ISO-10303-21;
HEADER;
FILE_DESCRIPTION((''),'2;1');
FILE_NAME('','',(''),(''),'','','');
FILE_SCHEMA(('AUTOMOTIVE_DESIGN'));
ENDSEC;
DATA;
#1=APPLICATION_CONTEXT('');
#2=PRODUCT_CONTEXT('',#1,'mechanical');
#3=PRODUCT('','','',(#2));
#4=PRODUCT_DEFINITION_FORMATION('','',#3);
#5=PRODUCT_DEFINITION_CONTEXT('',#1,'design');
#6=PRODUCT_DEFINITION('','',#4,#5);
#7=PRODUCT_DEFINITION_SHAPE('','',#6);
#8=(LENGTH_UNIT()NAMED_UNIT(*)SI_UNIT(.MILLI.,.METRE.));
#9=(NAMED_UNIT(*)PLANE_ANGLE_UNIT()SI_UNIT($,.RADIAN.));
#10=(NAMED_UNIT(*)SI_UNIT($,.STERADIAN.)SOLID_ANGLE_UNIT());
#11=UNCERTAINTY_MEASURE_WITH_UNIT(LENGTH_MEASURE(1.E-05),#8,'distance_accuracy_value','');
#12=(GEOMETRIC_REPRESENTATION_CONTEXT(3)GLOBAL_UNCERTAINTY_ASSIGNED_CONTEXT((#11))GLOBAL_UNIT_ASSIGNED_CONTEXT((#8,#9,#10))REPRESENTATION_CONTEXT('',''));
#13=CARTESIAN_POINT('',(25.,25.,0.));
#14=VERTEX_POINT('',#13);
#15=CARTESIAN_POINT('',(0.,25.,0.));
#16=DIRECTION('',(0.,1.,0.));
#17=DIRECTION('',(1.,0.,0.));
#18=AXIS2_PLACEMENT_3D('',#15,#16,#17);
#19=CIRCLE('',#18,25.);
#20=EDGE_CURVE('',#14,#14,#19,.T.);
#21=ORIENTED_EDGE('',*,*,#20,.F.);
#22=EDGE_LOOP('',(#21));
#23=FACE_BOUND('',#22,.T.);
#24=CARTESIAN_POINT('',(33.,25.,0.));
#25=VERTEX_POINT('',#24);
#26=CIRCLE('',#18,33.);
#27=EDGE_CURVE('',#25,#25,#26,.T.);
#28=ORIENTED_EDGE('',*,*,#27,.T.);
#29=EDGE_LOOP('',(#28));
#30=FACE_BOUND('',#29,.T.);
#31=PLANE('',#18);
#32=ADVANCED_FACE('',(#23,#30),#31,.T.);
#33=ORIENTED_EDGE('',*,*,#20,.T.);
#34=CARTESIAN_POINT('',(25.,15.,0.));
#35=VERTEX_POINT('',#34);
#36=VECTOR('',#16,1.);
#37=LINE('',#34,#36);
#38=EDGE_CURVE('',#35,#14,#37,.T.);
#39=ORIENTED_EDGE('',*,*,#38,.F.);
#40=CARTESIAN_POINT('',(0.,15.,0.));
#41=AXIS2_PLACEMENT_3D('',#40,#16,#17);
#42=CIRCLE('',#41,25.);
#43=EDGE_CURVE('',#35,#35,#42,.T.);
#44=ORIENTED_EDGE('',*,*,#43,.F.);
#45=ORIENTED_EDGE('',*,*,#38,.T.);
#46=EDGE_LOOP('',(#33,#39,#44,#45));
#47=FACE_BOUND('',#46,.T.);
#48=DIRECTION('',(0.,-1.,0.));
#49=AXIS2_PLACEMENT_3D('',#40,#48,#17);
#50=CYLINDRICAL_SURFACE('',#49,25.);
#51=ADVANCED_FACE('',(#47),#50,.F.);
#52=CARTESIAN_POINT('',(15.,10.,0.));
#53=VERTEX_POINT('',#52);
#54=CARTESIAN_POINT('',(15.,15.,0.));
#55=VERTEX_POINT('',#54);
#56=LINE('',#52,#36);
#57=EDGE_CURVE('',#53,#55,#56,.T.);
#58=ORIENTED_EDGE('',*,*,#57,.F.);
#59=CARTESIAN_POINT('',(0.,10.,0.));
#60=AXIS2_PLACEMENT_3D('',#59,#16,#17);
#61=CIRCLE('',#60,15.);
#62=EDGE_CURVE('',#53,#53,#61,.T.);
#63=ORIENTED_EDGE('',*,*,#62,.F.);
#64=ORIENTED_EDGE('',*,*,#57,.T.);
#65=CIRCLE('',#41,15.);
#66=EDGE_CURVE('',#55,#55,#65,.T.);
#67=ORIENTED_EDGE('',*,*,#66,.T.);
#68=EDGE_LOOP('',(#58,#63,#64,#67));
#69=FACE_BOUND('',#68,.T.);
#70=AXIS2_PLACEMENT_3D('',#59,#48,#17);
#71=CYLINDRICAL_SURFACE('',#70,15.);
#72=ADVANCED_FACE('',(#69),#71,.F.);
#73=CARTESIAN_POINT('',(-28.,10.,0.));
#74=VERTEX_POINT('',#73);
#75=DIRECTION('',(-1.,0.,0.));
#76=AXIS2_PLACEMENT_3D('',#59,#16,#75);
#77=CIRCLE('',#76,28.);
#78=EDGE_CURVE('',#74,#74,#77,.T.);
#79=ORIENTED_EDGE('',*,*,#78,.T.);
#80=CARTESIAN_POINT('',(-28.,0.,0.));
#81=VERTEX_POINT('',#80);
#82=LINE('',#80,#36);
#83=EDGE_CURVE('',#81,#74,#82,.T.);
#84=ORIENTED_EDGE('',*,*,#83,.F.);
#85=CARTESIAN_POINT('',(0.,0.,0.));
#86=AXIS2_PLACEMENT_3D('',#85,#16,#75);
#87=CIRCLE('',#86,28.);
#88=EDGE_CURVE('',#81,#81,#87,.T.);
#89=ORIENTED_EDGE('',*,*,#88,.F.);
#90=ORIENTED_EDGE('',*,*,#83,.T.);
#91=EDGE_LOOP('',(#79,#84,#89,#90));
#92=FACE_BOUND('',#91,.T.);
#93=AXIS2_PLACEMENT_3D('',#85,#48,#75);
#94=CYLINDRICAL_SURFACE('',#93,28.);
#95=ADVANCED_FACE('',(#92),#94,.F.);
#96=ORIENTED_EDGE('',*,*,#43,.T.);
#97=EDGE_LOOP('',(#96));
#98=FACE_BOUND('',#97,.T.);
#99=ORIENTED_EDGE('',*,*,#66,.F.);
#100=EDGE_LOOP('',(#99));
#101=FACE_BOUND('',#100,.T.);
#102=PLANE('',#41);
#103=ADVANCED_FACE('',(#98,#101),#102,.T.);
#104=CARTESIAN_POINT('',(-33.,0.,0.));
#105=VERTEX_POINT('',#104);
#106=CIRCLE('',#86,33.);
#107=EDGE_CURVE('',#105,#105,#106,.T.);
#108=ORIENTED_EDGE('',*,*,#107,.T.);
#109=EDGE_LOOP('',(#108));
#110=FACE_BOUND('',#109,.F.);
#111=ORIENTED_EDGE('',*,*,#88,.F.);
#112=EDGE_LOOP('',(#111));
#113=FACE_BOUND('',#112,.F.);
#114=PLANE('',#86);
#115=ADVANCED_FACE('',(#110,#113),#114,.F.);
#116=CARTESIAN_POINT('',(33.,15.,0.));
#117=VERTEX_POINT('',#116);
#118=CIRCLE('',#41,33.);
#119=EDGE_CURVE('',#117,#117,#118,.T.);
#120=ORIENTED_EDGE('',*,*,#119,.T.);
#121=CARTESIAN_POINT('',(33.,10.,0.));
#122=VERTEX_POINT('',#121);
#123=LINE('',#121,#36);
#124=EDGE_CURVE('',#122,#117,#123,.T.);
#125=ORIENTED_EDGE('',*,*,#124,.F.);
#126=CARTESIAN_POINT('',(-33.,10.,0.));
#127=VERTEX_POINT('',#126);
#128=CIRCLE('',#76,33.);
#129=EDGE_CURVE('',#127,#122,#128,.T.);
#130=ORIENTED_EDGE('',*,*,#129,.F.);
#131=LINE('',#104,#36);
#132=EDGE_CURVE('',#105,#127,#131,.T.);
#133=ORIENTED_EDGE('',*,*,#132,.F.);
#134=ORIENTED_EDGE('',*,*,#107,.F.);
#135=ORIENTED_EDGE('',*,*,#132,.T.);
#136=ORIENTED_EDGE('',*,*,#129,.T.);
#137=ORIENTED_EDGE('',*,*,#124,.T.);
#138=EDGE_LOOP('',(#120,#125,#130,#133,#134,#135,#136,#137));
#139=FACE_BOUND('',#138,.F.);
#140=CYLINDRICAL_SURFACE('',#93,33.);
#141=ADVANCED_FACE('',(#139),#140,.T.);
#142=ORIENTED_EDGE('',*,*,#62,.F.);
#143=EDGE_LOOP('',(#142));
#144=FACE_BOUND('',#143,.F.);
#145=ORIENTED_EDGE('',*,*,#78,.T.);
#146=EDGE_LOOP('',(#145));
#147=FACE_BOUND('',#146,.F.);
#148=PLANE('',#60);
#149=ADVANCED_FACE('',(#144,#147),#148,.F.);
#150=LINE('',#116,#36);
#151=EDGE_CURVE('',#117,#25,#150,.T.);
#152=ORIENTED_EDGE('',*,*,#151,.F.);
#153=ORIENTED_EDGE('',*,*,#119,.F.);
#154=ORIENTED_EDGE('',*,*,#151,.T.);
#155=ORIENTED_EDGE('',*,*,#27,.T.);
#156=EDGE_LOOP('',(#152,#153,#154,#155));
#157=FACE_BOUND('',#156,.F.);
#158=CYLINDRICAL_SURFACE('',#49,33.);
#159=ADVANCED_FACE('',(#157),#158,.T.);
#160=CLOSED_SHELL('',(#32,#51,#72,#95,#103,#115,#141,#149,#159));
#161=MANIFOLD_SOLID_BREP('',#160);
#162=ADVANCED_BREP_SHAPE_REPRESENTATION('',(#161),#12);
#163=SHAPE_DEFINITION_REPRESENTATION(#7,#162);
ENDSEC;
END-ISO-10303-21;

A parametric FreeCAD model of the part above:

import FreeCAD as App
import Part
import Sketcher
from FreeCAD import Vector

doc = App.newDocument("Part")
params = doc.addObject("Spreadsheet::Sheet", "Params")
for row, (alias, value) in enumerate([
    ("sketch1_diameter", "66 mm"),
    ("sketch1_diameter2", "56 mm"),
    ("pad1_length", "10 mm"),
    ("sketch2_diameter", "30 mm"),
    ("sketch2_diameter2", "66 mm"),
    ("pad2_length", "5 mm"),
    ("sketch3_diameter", "66 mm"),
    ("sketch3_diameter2", "50 mm"),
    ("pad3_length", "10 mm"),
], start=1):
    params.set(f"A{row}", alias)
    params.set(f"B{row}", "=" + value)
    params.setAlias(f"B{row}", alias)

body = doc.addObject("PartDesign::Body", "Body")

sketch1 = doc.addObject("Sketcher::SketchObject", "Sketch")
body.addObject(sketch1)
sketch1.AttachmentSupport = (doc.XZ_Plane, [""])
sketch1.MapMode = "FlatFace"
sketch1.addGeometry(Part.Circle(Vector(0, 0, 0), Vector(0, 0, 1), 33), False)
sketch1.addGeometry(Part.Circle(Vector(0, 0, 0), Vector(0, 0, 1), 28), False)
sketch1.addConstraint(Sketcher.Constraint("Coincident", 0, 3, -1, 1))
sketch1.addConstraint(Sketcher.Constraint("Coincident", 1, 3, -1, 1))
sketch1.addConstraint(Sketcher.Constraint("Diameter", 0, 66.0))
sketch1.addConstraint(Sketcher.Constraint("Diameter", 1, 56.0))
sketch1.setExpression("Constraints[2]", "Params.sketch1_diameter")
sketch1.setExpression("Constraints[3]", "Params.sketch1_diameter2")
pad1 = doc.addObject("PartDesign::Pad", "Pad")
body.addObject(pad1)
pad1.Profile = sketch1
pad1.setExpression("Length", "Params.pad1_length")
pad1.Reversed = True

sketch2 = doc.addObject("Sketcher::SketchObject", "Sketch001")
body.addObject(sketch2)
sketch2.AttachmentSupport = (doc.XZ_Plane, [""])
sketch2.MapMode = "FlatFace"
sketch2.AttachmentOffset = App.Placement(Vector(0, 0, -10), App.Rotation())
sketch2.addGeometry(Part.Circle(Vector(0, 0, 0), Vector(0, 0, 1), 33), False)
sketch2.addGeometry(Part.Circle(Vector(0, 0, 0), Vector(0, 0, 1), 15), False)
sketch2.addConstraint(Sketcher.Constraint("Coincident", 0, 3, -1, 1))
sketch2.addConstraint(Sketcher.Constraint("Coincident", 1, 3, -1, 1))
sketch2.addConstraint(Sketcher.Constraint("Diameter", 1, 30.0))
sketch2.addConstraint(Sketcher.Constraint("Diameter", 0, 66.0))
sketch2.setExpression("Constraints[2]", "Params.sketch2_diameter")
sketch2.setExpression("Constraints[3]", "Params.sketch2_diameter2")
pad2 = doc.addObject("PartDesign::Pad", "Pad001")
body.addObject(pad2)
pad2.Profile = sketch2
pad2.setExpression("Length", "Params.pad2_length")
pad2.Reversed = True

sketch3 = doc.addObject("Sketcher::SketchObject", "Sketch002")
body.addObject(sketch3)
sketch3.AttachmentSupport = (doc.XZ_Plane, [""])
sketch3.MapMode = "FlatFace"
sketch3.AttachmentOffset = App.Placement(Vector(0, 0, -15), App.Rotation())
sketch3.addGeometry(Part.Circle(Vector(0, 0, 0), Vector(0, 0, 1), 33), False)
sketch3.addGeometry(Part.Circle(Vector(0, 0, 0), Vector(0, 0, 1), 25), False)
sketch3.addConstraint(Sketcher.Constraint("Coincident", 0, 3, -1, 1))
sketch3.addConstraint(Sketcher.Constraint("Coincident", 1, 3, -1, 1))
sketch3.addConstraint(Sketcher.Constraint("Diameter", 0, 66.0))
sketch3.addConstraint(Sketcher.Constraint("Diameter", 1, 50.0))
sketch3.setExpression("Constraints[2]", "Params.sketch3_diameter")
sketch3.setExpression("Constraints[3]", "Params.sketch3_diameter2")
pad3 = doc.addObject("PartDesign::Pad", "Pad002")
body.addObject(pad3)
pad3.Profile = sketch3
pad3.setExpression("Length", "Params.pad3_length")
pad3.Reversed = True

doc.recompute()
